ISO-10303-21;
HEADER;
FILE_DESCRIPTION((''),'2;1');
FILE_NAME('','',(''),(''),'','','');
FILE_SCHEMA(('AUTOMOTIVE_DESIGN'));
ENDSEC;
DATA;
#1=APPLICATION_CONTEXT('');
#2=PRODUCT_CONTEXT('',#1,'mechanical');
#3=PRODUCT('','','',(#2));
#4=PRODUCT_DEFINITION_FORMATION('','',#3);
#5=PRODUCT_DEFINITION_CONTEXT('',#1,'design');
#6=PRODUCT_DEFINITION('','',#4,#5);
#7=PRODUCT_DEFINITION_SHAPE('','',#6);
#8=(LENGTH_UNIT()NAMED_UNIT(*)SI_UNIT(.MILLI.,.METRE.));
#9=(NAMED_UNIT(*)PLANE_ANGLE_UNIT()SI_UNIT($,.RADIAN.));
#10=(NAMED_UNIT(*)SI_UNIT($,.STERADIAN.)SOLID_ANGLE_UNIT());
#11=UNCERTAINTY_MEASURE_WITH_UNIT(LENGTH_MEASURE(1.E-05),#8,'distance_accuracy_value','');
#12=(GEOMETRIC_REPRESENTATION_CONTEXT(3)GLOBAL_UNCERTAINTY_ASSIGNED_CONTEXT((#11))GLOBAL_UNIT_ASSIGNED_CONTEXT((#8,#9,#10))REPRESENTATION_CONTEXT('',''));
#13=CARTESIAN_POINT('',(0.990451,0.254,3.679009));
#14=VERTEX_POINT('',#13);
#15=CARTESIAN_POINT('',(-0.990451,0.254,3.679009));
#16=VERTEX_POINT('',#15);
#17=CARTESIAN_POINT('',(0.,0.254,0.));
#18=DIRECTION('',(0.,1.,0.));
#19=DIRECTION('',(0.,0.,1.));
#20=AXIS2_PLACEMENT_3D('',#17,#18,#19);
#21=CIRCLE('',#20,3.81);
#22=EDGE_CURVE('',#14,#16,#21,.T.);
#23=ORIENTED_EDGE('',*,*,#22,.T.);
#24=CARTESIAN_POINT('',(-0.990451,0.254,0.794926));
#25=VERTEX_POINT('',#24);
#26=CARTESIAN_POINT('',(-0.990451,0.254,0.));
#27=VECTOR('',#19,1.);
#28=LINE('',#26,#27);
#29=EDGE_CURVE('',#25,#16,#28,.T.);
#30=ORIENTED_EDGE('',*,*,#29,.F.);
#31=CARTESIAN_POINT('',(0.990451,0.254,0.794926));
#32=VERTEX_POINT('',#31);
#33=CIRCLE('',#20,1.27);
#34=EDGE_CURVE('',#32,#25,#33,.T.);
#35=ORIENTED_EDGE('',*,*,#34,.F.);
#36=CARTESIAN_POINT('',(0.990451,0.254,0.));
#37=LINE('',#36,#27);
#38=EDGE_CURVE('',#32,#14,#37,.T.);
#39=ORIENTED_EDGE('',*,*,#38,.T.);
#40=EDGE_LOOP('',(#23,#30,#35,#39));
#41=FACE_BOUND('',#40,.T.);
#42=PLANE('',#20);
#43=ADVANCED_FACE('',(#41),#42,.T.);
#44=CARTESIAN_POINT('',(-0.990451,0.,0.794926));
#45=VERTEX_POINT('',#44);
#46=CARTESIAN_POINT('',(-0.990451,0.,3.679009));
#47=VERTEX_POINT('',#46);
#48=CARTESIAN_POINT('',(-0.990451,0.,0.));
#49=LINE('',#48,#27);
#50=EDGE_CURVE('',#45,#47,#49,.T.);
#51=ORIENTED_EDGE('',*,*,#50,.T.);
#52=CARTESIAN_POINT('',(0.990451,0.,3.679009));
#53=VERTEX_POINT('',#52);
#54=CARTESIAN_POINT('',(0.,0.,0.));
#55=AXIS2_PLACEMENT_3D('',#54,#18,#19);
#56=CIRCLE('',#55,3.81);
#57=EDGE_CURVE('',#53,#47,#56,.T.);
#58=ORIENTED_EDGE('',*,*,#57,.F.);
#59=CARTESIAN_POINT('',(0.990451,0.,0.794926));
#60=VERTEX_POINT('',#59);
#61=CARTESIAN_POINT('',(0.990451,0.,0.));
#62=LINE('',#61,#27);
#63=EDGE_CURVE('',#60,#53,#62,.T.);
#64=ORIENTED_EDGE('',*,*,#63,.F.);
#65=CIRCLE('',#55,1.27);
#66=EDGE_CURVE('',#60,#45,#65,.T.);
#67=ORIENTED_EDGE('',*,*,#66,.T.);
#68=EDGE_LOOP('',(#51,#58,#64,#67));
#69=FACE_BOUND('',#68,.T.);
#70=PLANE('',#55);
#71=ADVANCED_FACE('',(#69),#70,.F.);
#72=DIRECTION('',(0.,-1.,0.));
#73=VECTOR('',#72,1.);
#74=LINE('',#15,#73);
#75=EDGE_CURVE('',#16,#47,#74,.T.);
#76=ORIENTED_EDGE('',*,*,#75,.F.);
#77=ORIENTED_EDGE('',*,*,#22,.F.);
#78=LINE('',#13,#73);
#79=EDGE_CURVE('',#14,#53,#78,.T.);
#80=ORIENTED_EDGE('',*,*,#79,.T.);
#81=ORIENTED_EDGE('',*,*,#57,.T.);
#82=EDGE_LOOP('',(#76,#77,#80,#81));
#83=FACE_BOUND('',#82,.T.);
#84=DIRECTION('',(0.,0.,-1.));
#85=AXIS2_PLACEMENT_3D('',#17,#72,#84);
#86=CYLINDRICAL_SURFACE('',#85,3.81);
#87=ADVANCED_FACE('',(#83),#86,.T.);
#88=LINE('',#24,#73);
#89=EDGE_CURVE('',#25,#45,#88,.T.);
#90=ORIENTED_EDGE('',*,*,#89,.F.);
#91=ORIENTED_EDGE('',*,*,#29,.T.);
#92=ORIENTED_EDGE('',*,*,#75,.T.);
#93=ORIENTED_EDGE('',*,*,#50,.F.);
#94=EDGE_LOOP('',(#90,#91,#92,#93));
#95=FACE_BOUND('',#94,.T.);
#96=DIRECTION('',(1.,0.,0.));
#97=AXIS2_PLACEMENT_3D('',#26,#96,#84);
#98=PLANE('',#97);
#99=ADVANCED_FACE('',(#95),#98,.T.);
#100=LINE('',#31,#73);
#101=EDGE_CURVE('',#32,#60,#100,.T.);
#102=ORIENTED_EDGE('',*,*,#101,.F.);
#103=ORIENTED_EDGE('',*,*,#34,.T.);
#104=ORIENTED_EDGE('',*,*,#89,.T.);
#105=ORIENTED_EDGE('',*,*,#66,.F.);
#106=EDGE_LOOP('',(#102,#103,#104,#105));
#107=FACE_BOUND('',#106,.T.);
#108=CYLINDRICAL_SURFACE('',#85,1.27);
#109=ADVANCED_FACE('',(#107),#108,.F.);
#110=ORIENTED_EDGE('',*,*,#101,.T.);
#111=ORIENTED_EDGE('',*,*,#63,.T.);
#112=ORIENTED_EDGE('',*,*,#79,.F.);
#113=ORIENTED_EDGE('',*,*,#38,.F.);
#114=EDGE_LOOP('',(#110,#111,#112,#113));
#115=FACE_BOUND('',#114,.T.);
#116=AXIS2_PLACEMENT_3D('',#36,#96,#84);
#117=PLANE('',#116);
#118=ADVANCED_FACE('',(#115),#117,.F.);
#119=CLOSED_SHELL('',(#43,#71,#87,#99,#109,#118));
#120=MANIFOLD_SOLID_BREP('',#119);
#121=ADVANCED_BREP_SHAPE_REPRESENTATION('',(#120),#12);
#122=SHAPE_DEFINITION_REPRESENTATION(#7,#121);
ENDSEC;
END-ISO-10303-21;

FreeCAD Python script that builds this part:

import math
import FreeCAD as App
import Part
import Sketcher
Q = App.Units.Quantity

doc = App.newDocument("Part")
body = doc.addObject("PartDesign::Body", "Body")

# Sketch on XZ plane
sketch1 = body.newObject("Sketcher::SketchObject", "Sketch")
sketch1.AttachmentSupport = (doc.getObject("XZ_Plane"), [""])
sketch1.MapMode = "FlatFace"
sketch1.addGeometry(Part.ArcOfCircle(Part.Circle(App.Vector(0, 0, 0), App.Vector(0, 0, 1), 3.8), math.radians(105), math.radians(255)), False)
sketch1.addGeometry(Part.LineSegment(App.Vector(-1, 3.7, 0), App.Vector(-1, 0.8, 0)), False)
sketch1.addGeometry(Part.ArcOfCircle(Part.Circle(App.Vector(0, 0, 0), App.Vector(0, 0, 1), 1.3), math.radians(141), math.radians(219)), False)
sketch1.addGeometry(Part.ArcOfCircle(Part.Circle(App.Vector(0, 0, 0), App.Vector(0, 0, 1), 1.3), math.radians(-141), math.radians(-39)), False)
sketch1.addGeometry(Part.ArcOfCircle(Part.Circle(App.Vector(0, 0, 0), App.Vector(0, 0, 1), 1.3), math.radians(-39), math.radians(0)), False)
sketch1.addGeometry(Part.ArcOfCircle(Part.Circle(App.Vector(0, 0, 0), App.Vector(0, 0, 1), 1.3), math.radians(0), math.radians(39)), False)
sketch1.addGeometry(Part.LineSegment(App.Vector(1, 0.8, 0), App.Vector(1, 3.7, 0)), False)
sketch1.addGeometry(Part.ArcOfCircle(Part.Circle(App.Vector(0, 0, 0), App.Vector(0, 0, 1), 3.8), math.radians(0), math.radians(75)), False)
sketch1.addGeometry(Part.ArcOfCircle(Part.Circle(App.Vector(0, 0, 0), App.Vector(0, 0, 1), 3.8), math.radians(-75), math.radians(0)), False)
sketch1.addGeometry(Part.ArcOfCircle(Part.Circle(App.Vector(0, 0, 0), App.Vector(0, 0, 1), 3.8), math.radians(-105), math.radians(-75)), False)
sketch1.addConstraint(Sketcher.Constraint("Coincident", 0, 1, 1, 1))
sketch1.addConstraint(Sketcher.Constraint("Coincident", 1, 2, 2, 1))
sketch1.addConstraint(Sketcher.Constraint("Tangent", 2, 2, 3, 1))
sketch1.addConstraint(Sketcher.Constraint("Tangent", 3, 2, 4, 1))
sketch1.addConstraint(Sketcher.Constraint("Tangent", 4, 2, 5, 1))
sketch1.addConstraint(Sketcher.Constraint("Coincident", 5, 2, 6, 1))
sketch1.addConstraint(Sketcher.Constraint("Coincident", 6, 2, 7, 2))
sketch1.addConstraint(Sketcher.Constraint("Tangent", 7, 1, 8, 2))
sketch1.addConstraint(Sketcher.Constraint("Tangent", 8, 1, 9, 2))
sketch1.addConstraint(Sketcher.Constraint("Tangent", 9, 1, 0, 2))
sketch1.addConstraint(Sketcher.Constraint("Vertical", 1))
sketch1.addConstraint(Sketcher.Constraint("Vertical", 6))
sketch1.addConstraint(Sketcher.Constraint("Coincident", 0, 3, -1, 1))
sketch1.addConstraint(Sketcher.Constraint("Coincident", 2, 3, -1, 1))
sketch1.addConstraint(Sketcher.Constraint("Coincident", 4, 3, -1, 1))
sketch1.addConstraint(Sketcher.Constraint("Coincident", 7, 3, -1, 1))
sketch1.addConstraint(Sketcher.Constraint("Equal", 4, 5))
sketch1.addConstraint(Sketcher.Constraint("Equal", 0, 7))
sketch1.addConstraint(Sketcher.Constraint("PointOnObject", 4, 2, -1))
sketch1.addConstraint(Sketcher.Constraint("PointOnObject", 7, 1, -1))
sketch1.addConstraint(Sketcher.Constraint("Horizontal", 2, 2, 3, 2))
sketch1.addConstraint(Sketcher.Constraint("Horizontal", 1, 2, 5, 2))
sketch1.addConstraint(Sketcher.Constraint("Horizontal", 8, 1, 9, 1))
sketch1.addConstraint(Sketcher.Constraint("Vertical", 1, 2, 2, 2))
sketch1.addConstraint(Sketcher.Constraint("Vertical", 6, 2, 8, 1))
sketch1.addConstraint(Sketcher.Constraint("Radius", 0, Q("0.15 in")))
sketch1.addConstraint(Sketcher.Constraint("Radius", 2, Q("0.05 in")))
sketch1.addConstraint(Sketcher.Constraint("DistanceX", 0, 1, 6, 2, 1.980902))
pad1 = body.newObject("PartDesign::Pad", "Pad")
pad1.Profile = sketch1
pad1.Length = Q("0.01 in")
pad1.Reversed = True

doc.recompute()
